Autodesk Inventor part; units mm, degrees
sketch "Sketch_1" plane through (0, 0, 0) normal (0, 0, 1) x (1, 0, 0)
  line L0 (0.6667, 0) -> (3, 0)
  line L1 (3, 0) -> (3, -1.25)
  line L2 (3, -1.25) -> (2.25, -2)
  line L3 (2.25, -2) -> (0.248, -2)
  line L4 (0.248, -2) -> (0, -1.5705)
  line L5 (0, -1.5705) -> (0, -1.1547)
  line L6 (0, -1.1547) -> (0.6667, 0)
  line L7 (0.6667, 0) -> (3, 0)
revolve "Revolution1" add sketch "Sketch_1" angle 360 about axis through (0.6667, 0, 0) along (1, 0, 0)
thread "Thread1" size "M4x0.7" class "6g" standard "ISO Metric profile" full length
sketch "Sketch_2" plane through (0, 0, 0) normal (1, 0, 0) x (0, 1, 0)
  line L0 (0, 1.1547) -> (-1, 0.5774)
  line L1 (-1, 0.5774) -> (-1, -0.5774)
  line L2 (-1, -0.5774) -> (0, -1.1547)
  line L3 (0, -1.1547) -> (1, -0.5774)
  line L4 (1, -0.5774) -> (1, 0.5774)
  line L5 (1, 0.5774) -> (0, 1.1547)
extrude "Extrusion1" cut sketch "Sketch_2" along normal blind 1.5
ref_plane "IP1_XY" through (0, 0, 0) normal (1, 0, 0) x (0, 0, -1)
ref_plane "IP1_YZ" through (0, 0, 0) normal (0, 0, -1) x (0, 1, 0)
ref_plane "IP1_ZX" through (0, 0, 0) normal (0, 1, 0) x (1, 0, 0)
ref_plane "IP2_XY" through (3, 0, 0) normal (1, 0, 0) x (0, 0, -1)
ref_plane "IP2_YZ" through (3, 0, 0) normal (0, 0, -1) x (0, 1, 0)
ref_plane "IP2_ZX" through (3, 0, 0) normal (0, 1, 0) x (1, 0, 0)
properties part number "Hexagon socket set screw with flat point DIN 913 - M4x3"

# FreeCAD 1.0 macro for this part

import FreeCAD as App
import Part
import Sketcher

V = App.Vector
Q = App.Units.Quantity


def add_polygon(sketch, points):
    """Adds a closed chain of lines whose ends are joined by coincident constraints."""
    first, n = sketch.GeometryCount, len(points)
    for a, b in zip(points, points[1:] + points[:1]):
        sketch.addGeometry(Part.LineSegment(App.Vector(*a, 0), App.Vector(*b, 0)), False)
    for i in range(n):
        sketch.addConstraint(Sketcher.Constraint("Coincident", first + i, 2, first + (i + 1) % n, 1))

doc = App.newDocument("Part")
body = doc.addObject("PartDesign::Body", "Body")

# Sketch on XY plane
sketch1 = body.newObject("Sketcher::SketchObject", "Sketch")
sketch1.AttachmentSupport = (doc.getObject("XY_Plane"), [""])
sketch1.MapMode = "FlatFace"
add_polygon(sketch1, [(3, 0), (0.6667, 0), (0, -1.1547), (0, -1.5705), (0.248, -2), (2.25, -2), (3, -1.25)])  # lines 0-6
sketch1.addConstraint(Sketcher.Constraint("Horizontal", 0))
sketch1.addConstraint(Sketcher.Constraint("Vertical", 2))
sketch1.addConstraint(Sketcher.Constraint("Horizontal", 4))
sketch1.addConstraint(Sketcher.Constraint("Vertical", 6))
sketch1.addConstraint(Sketcher.Constraint("PointOnObject", 0, 2, -1))
sketch1.addConstraint(Sketcher.Constraint("PointOnObject", 1, 2, -2))
sketch1.addConstraint(Sketcher.Constraint("Angle", 5, Q("45 deg")))
sketch1.addConstraint(Sketcher.Constraint("DistanceY", 3, 2, -1, 1, Q("2 mm")))
sketch1.addConstraint(Sketcher.Constraint("DistanceX", -1, 1, 5, 2, Q("3 mm")))
sketch1.addConstraint(Sketcher.Constraint("DistanceY", 6, 1, 6, 2, Q("1.25 mm")))
sketch1.addConstraint(Sketcher.Constraint("DistanceX", 4, 1, 4, 2, Q("2.002 mm")))
sketch1.addConstraint(Sketcher.Constraint("Distance", 3, Q("0.496 mm")))
sketch1.addConstraint(Sketcher.Constraint("DistanceX", 0, 2, 0, 1, Q("2.3333 mm")))
sketch1.addConstraint(Sketcher.Constraint("DistanceY", 2, 2, 2, 1, Q("0.4158 mm")))
revolution = body.newObject("PartDesign::Revolution", "Revolution")
revolution.Profile = sketch1
revolution.ReferenceAxis = (sketch1, ["H_Axis"])
revolution.Angle = 360

# Sketch on YZ plane
sketch2 = body.newObject("Sketcher::SketchObject", "Sketch001")
sketch2.AttachmentSupport = (doc.getObject("YZ_Plane"), [""])
sketch2.MapMode = "FlatFace"
add_polygon(sketch2, [(1, 0.5774), (0, 1.1547), (-1, 0.5774), (-1, -0.5774), (0, -1.1547), (1, -0.5774)])  # lines 0-5
sketch2.addConstraint(Sketcher.Constraint("Vertical", 2))
sketch2.addConstraint(Sketcher.Constraint("Vertical", 5))
sketch2.addConstraint(Sketcher.Constraint("Symmetric", 0, 2, 3, 2, -1, 1))
sketch2.addConstraint(Sketcher.Constraint("Symmetric", 1, 2, 4, 2, -1, 1))
sketch2.addConstraint(Sketcher.Constraint("PointOnObject", 0, 2, -2))
sketch2.addConstraint(Sketcher.Constraint("Parallel", 0, 3))
sketch2.addConstraint(Sketcher.Constraint("Horizontal", 2, 2, 4, 2))
sketch2.addConstraint(Sketcher.Constraint("DistanceX", 1, 2, -1, 1, Q("1 mm")))
sketch2.addConstraint(Sketcher.Constraint("DistanceY", 2, 2, 2, 1, Q("1.1548 mm")))
sketch2.addConstraint(Sketcher.Constraint("DistanceY", 2, 2, 0, 2, Q("1.732 mm")))
pocket1 = body.newObject("PartDesign::Pocket", "Pocket")
pocket1.Profile = sketch2
pocket1.Length = 1.5
pocket1.Reversed = True

doc.recompute()
